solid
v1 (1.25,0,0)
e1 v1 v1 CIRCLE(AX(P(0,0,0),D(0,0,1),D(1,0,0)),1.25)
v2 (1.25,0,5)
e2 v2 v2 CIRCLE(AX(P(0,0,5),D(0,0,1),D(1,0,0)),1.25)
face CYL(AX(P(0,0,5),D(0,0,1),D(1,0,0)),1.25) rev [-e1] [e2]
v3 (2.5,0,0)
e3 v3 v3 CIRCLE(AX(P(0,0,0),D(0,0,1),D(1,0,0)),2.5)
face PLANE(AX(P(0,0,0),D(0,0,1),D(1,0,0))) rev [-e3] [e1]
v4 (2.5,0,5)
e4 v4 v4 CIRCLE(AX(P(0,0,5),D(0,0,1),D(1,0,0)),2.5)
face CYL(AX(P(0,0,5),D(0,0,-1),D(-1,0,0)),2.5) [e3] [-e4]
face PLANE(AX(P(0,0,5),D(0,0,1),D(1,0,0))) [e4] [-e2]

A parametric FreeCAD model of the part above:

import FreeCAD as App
import Part
import Sketcher

V = App.Vector
Q = App.Units.Quantity

doc = App.newDocument("Part")
body = doc.addObject("PartDesign::Body", "Body")

sketch1 = doc.addObject("Sketcher::SketchObject", "Sketch")
body.addObject(sketch1)
sketch1.AttachmentSupport = (doc.XY_Plane, [""])
sketch1.MapMode = "FlatFace"
sketch1.addGeometry(Part.Circle(V(0, 0, 0), V(0, 0, 1), 2.5), False)
sketch1.addConstraint([
    Sketcher.Constraint("Coincident", 0, 3, -1, 1),
    Sketcher.Constraint("Diameter", 0, Q("5 mm")),
])
pad1 = doc.addObject("PartDesign::Pad", "Pad")
body.addObject(pad1)
pad1.Profile = sketch1
pad1.Length = 5

sketch2 = doc.addObject("Sketcher::SketchObject", "Sketch001")
body.addObject(sketch2)
sketch2.AttachmentSupport = (doc.XY_Plane, [""])
sketch2.MapMode = "FlatFace"
sketch2.AttachmentOffset = App.Placement(V(0, 0, 5), App.Rotation())
sketch2.addGeometry(Part.Circle(V(0, 0, 0), V(0, 0, 1), 1.2), False)
sketch2.addConstraint([
    Sketcher.Constraint("Coincident", 0, 3, -1, 1),
    Sketcher.Constraint("Diameter", 0, Q("2.5 mm")),
])
doc.recompute()
hole = doc.addObject("PartDesign::Hole", "Hole")
body.addObject(hole)
hole.Profile = sketch2
hole.ThreadType = "None"
hole.Diameter = 2.5
hole.DepthType = "ThroughAll"

doc.recompute()
